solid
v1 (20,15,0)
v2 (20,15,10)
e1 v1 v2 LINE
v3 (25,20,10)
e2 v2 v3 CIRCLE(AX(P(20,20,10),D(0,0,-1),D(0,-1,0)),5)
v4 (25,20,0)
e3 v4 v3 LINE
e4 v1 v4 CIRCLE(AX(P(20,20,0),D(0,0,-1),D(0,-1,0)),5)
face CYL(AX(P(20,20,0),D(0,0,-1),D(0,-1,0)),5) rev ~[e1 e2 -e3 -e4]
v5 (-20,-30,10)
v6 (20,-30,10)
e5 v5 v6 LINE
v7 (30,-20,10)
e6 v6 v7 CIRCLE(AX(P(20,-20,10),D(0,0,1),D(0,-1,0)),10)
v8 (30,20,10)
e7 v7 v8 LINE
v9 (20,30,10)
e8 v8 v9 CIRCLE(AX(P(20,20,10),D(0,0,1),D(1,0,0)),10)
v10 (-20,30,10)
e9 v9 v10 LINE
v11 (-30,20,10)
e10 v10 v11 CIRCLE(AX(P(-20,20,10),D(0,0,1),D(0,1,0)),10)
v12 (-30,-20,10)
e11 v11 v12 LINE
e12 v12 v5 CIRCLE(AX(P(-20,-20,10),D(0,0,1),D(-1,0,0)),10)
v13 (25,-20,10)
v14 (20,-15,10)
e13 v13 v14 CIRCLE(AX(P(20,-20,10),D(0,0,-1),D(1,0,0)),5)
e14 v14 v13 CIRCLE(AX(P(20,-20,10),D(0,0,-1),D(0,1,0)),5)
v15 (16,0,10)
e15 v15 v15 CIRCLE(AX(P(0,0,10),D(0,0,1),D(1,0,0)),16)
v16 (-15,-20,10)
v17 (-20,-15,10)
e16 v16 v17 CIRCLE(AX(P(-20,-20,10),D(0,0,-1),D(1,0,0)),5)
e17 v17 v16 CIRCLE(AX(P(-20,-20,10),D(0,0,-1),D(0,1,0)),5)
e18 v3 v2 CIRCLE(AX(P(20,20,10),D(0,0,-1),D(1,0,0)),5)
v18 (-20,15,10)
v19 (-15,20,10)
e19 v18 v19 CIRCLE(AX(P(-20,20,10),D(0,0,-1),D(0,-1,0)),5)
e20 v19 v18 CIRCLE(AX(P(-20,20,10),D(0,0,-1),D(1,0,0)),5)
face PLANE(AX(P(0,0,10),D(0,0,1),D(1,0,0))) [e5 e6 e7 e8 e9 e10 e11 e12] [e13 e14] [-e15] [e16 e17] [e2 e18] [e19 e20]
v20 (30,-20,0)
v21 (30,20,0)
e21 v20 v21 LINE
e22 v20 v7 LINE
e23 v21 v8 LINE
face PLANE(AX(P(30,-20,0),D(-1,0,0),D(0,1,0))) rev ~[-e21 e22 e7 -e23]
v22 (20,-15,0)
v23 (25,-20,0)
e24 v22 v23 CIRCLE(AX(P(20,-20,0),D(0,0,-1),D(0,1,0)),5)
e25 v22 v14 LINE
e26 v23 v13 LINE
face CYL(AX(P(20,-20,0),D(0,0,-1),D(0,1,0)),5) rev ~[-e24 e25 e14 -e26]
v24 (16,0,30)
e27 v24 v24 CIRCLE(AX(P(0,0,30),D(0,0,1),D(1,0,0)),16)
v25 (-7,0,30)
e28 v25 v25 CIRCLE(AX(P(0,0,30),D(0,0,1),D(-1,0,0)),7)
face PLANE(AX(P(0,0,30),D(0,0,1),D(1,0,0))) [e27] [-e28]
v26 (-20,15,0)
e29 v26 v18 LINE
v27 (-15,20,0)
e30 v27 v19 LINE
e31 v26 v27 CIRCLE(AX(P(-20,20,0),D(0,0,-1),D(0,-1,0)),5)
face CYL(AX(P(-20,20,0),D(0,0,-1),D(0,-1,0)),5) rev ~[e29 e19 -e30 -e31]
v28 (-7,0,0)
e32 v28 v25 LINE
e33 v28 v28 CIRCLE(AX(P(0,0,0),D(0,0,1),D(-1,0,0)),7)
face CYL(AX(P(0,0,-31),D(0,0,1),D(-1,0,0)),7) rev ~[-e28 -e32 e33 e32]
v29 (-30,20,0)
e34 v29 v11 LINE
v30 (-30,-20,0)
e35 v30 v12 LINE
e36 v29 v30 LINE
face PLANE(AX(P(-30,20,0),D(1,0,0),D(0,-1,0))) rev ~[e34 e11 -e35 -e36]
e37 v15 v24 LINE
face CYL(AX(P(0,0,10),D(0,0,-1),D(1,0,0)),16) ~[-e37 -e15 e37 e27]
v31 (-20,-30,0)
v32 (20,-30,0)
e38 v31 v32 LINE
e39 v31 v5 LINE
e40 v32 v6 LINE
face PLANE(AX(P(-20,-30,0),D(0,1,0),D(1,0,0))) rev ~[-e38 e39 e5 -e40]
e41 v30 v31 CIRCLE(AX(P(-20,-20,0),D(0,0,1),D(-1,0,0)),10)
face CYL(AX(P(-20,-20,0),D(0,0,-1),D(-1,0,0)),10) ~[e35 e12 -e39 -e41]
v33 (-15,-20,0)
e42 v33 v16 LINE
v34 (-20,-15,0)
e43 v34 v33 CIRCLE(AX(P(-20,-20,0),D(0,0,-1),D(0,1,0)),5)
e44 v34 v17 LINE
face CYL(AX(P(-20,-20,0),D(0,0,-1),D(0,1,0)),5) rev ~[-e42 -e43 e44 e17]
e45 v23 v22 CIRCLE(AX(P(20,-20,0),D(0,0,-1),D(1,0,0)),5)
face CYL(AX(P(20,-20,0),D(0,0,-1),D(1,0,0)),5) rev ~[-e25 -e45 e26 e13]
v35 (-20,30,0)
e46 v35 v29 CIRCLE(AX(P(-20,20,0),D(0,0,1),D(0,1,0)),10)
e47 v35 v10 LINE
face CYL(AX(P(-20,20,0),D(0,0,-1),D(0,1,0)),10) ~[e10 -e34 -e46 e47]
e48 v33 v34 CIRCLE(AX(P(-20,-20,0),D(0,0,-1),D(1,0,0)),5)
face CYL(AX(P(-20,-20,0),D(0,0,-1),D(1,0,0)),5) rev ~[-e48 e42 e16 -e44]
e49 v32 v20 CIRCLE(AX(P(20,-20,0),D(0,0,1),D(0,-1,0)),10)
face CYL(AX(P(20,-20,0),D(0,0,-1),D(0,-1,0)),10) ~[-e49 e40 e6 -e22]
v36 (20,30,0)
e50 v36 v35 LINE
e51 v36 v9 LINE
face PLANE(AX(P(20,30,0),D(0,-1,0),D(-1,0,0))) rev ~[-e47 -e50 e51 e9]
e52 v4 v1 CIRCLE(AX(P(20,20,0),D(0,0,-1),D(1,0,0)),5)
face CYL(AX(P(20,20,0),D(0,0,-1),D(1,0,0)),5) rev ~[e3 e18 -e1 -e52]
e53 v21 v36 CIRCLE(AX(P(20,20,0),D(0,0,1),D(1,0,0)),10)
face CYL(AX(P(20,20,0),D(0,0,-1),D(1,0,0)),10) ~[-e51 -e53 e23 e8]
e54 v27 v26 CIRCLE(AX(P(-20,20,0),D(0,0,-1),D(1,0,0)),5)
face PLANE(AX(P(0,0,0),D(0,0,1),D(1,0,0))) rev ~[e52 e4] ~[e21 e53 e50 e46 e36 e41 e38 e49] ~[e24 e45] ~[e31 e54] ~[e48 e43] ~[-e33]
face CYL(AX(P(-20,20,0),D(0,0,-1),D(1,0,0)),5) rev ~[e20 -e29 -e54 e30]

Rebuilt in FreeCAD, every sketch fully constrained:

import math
import FreeCAD as App
import Part
import Sketcher

V = App.Vector
Q = App.Units.Quantity

doc = App.newDocument("Part")
body = doc.addObject("PartDesign::Body", "Body")

# Sketch on XZ plane
sketch1 = body.newObject("Sketcher::SketchObject", "Sketch")
sketch1.AttachmentSupport = (doc.getObject("XZ_Plane"), [""])
sketch1.MapMode = "FlatFace"
sketch1.addGeometry(Part.LineSegment(V(20, 30, 0), V(-20, 30, 0)), False)
sketch1.addGeometry(Part.ArcOfCircle(Part.Circle(V(-20, 20, 0), V(0, 0, 1), 10), math.radians(90), math.radians(180)), False)
sketch1.addGeometry(Part.LineSegment(V(-30, 20, 0), V(-30, -20, 0)), False)
sketch1.addGeometry(Part.ArcOfCircle(Part.Circle(V(-20, -20, 0), V(0, 0, 1), 10), math.radians(180), math.radians(270)), False)
sketch1.addGeometry(Part.LineSegment(V(-20, -30, 0), V(20, -30, 0)), False)
sketch1.addGeometry(Part.ArcOfCircle(Part.Circle(V(20, -20, 0), V(0, 0, 1), 10), math.radians(-90), math.radians(0)), False)
sketch1.addGeometry(Part.LineSegment(V(30, -20, 0), V(30, 20, 0)), False)
sketch1.addGeometry(Part.ArcOfCircle(Part.Circle(V(20, 20, 0), V(0, 0, 1), 10), math.radians(0), math.radians(90)), False)
sketch1.addGeometry(Part.ArcOfCircle(Part.Circle(V(-20, -20, 0), V(0, 0, 1), 5), math.radians(0), math.radians(90)), False)
sketch1.addGeometry(Part.ArcOfCircle(Part.Circle(V(-20, -20, 0), V(0, 0, 1), 5), math.radians(90), math.radians(360)), False)
sketch1.addGeometry(Part.ArcOfCircle(Part.Circle(V(20, -20, 0), V(0, 0, 1), 5), math.radians(0), math.radians(90)), False)
sketch1.addGeometry(Part.ArcOfCircle(Part.Circle(V(20, -20, 0), V(0, 0, 1), 5), math.radians(90), math.radians(360)), False)
sketch1.addGeometry(Part.ArcOfCircle(Part.Circle(V(-20, 20, 0), V(0, 0, 1), 5), math.radians(0), math.radians(270)), False)
sketch1.addGeometry(Part.ArcOfCircle(Part.Circle(V(-20, 20, 0), V(0, 0, 1), 5), math.radians(-90), math.radians(0)), False)
sketch1.addGeometry(Part.ArcOfCircle(Part.Circle(V(20, 20, 0), V(0, 0, 1), 5), math.radians(0), math.radians(270)), False)
sketch1.addGeometry(Part.ArcOfCircle(Part.Circle(V(20, 20, 0), V(0, 0, 1), 5), math.radians(-90), math.radians(0)), False)
sketch1.addConstraint(Sketcher.Constraint("Tangent", 0, 2, 1, 1))
sketch1.addConstraint(Sketcher.Constraint("Tangent", 1, 2, 2, 1))
sketch1.addConstraint(Sketcher.Constraint("Tangent", 2, 2, 3, 1))
sketch1.addConstraint(Sketcher.Constraint("Tangent", 3, 2, 4, 1))
sketch1.addConstraint(Sketcher.Constraint("Tangent", 4, 2, 5, 1))
sketch1.addConstraint(Sketcher.Constraint("Tangent", 5, 2, 6, 1))
sketch1.addConstraint(Sketcher.Constraint("Tangent", 6, 2, 7, 1))
sketch1.addConstraint(Sketcher.Constraint("Tangent", 7, 2, 0, 1))
sketch1.addConstraint(Sketcher.Constraint("Tangent", 8, 1, 9, 2))
sketch1.addConstraint(Sketcher.Constraint("Coincident", 9, 1, 8, 2))
sketch1.addConstraint(Sketcher.Constraint("Tangent", 10, 1, 11, 2))
sketch1.addConstraint(Sketcher.Constraint("Coincident", 11, 1, 10, 2))
sketch1.addConstraint(Sketcher.Constraint("Tangent", 12, 1, 13, 2))
sketch1.addConstraint(Sketcher.Constraint("Coincident", 13, 1, 12, 2))
sketch1.addConstraint(Sketcher.Constraint("Tangent", 14, 1, 15, 2))
sketch1.addConstraint(Sketcher.Constraint("Coincident", 15, 1, 14, 2))
sketch1.addConstraint(Sketcher.Constraint("Horizontal", 0))
sketch1.addConstraint(Sketcher.Constraint("Vertical", 2))
sketch1.addConstraint(Sketcher.Constraint("Horizontal", 4))
sketch1.addConstraint(Sketcher.Constraint("Vertical", 6))
sketch1.addConstraint(Sketcher.Constraint("Coincident", 8, 3, 3, 3))
sketch1.addConstraint(Sketcher.Constraint("Coincident", 10, 3, 5, 3))
sketch1.addConstraint(Sketcher.Constraint("Coincident", 12, 3, 1, 3))
sketch1.addConstraint(Sketcher.Constraint("Coincident", 14, 3, 7, 3))
sketch1.addConstraint(Sketcher.Constraint("Equal", 1, 3))
sketch1.addConstraint(Sketcher.Constraint("Equal", 3, 5))
sketch1.addConstraint(Sketcher.Constraint("Equal", 5, 7))
sketch1.addConstraint(Sketcher.Constraint("Equal", 9, 10))
sketch1.addConstraint(Sketcher.Constraint("Equal", 11, 12))
sketch1.addConstraint(Sketcher.Constraint("Equal", 13, 14))
sketch1.addConstraint(Sketcher.Constraint("Symmetric", 1, 3, 5, 3, -1, 1))
sketch1.addConstraint(Sketcher.Constraint("Horizontal", 5, 2, 8, 1))
sketch1.addConstraint(Sketcher.Constraint("Horizontal", 8, 1, 10, 1))
sketch1.addConstraint(Sketcher.Constraint("Horizontal", 6, 2, 12, 1))
sketch1.addConstraint(Sketcher.Constraint("Horizontal", 12, 1, 14, 1))
sketch1.addConstraint(Sketcher.Constraint("Vertical", 3, 2, 9, 1))
sketch1.addConstraint(Sketcher.Constraint("Vertical", 7, 2, 11, 1))
sketch1.addConstraint(Sketcher.Constraint("Vertical", 9, 1, 13, 1))
sketch1.addConstraint(Sketcher.Constraint("Vertical", 11, 1, 15, 1))
sketch1.addConstraint(Sketcher.Constraint("Equal", 4, 2))
sketch1.addConstraint(Sketcher.Constraint("Radius", 1, Q("10 mm")))
sketch1.addConstraint(Sketcher.Constraint("Radius", 8, Q("5 mm")))
sketch1.addConstraint(Sketcher.Constraint("DistanceX", 0, 2, 0, 1, Q("40 mm")))
pad1 = body.newObject("PartDesign::Pad", "Pad")
pad1.Profile = sketch1
pad1.Length = 10

# Sketch on XZ plane
sketch2 = body.newObject("Sketcher::SketchObject", "Sketch001")
sketch2.AttachmentSupport = (doc.getObject("XZ_Plane"), [""])
sketch2.MapMode = "FlatFace"
sketch2.AttachmentOffset = App.Placement(V(0, 0, 10), App.Rotation())
sketch2.addGeometry(Part.Circle(V(0, 0, 0), V(0, 0, 1), 16), False)
sketch2.addConstraint(Sketcher.Constraint("Coincident", 0, 3, -1, 1))
sketch2.addConstraint(Sketcher.Constraint("Diameter", 0, Q("32 mm")))
pad2 = body.newObject("PartDesign::Pad", "Pad001")
pad2.Profile = sketch2
pad2.Length = 20

# Sketch on XZ plane
sketch3 = body.newObject("Sketcher::SketchObject", "Sketch002")
sketch3.AttachmentSupport = (doc.getObject("XZ_Plane"), [""])
sketch3.MapMode = "FlatFace"
sketch3.addGeometry(Part.Circle(V(0, 0, 0), V(0, 0, 1), 7), False)
sketch3.addConstraint(Sketcher.Constraint("Coincident", 0, 3, -1, 1))
sketch3.addConstraint(Sketcher.Constraint("Diameter", 0, Q("14 mm")))
doc.recompute()
hole = body.newObject("PartDesign::Hole", "Hole")
hole.Profile = sketch3
hole.ThreadType = "None"
hole.Diameter = 14
hole.DepthType = "Dimension"
hole.Depth = 31
hole.DrillPoint = "Angled"
hole.DrillPointAngle = 118
hole.Reversed = True
body2 = doc.addObject("PartDesign::Body", "Body001")
doc.recompute()

body.Placement = App.Placement(V(0, 0, 0), App.Rotation(V(1, 0, 0), 270))
boolean = body2.newObject("PartDesign::Boolean", "Boolean")
boolean.Type = "Fuse"
boolean.addObjects([body])

doc.recompute()
